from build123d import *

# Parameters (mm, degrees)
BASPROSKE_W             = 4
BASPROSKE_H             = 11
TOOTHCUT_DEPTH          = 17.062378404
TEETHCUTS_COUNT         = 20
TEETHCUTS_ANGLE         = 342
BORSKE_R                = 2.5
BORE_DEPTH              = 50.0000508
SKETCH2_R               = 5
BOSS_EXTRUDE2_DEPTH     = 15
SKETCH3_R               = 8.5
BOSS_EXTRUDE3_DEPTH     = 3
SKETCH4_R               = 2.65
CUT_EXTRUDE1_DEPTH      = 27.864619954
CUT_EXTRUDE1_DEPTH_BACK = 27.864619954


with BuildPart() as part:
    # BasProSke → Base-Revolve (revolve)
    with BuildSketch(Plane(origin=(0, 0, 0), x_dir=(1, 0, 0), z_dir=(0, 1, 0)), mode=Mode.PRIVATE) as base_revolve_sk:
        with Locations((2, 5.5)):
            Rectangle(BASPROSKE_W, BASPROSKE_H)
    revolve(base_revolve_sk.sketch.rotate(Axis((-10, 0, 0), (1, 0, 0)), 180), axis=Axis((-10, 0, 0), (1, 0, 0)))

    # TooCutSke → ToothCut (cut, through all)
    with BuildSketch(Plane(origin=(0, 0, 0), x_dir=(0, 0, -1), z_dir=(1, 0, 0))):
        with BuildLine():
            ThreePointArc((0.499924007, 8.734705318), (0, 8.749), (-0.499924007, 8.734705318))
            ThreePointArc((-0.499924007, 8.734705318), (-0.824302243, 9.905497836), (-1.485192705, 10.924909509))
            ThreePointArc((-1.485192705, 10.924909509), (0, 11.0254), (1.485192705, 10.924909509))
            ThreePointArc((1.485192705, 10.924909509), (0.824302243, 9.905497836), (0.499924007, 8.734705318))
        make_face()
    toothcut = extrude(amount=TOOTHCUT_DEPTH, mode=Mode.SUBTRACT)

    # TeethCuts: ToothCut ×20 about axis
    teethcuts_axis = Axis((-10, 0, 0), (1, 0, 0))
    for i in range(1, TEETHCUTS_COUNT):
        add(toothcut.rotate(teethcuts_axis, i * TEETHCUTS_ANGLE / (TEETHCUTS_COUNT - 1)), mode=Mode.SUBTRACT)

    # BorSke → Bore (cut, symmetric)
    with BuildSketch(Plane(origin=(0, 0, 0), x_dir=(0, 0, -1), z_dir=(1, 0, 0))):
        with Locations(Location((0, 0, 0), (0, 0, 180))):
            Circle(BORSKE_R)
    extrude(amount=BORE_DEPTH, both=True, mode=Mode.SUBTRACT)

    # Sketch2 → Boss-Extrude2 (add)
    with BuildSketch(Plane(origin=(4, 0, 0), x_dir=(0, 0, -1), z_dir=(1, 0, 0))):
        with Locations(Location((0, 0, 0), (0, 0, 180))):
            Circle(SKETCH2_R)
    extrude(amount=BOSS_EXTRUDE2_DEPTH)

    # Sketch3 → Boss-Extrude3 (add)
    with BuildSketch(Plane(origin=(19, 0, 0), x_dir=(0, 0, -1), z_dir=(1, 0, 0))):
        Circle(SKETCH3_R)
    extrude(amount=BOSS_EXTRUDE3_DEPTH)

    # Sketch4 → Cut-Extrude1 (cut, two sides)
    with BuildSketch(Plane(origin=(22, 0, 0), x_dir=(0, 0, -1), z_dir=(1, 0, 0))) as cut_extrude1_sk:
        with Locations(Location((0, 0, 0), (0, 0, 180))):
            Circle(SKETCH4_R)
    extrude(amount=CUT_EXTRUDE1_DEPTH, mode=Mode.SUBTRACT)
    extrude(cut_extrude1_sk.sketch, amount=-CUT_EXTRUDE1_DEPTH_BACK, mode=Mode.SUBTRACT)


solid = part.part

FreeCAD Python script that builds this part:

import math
import FreeCAD as App
import Part
import Sketcher

doc = App.newDocument("Part")
params = doc.addObject("Spreadsheet::Sheet", "Params")
for row, (alias, value) in enumerate([
    ("sketch1_width", "4 mm"),
    ("sketch1_height", "11 mm"),
    ("revolution_angle", "360 deg"),
    ("sketch2_radius", "4 mm"),
    ("sketch3_diameter", "5 mm"),
    ("pocket2_length", "100.000102 mm"),
    ("sketch4_diameter", "10 mm"),
    ("pad1_length", "15 mm"),
    ("sketch5_diameter", "17 mm"),
    ("pad2_length", "3 mm"),
    ("sketch6_diameter", "5.3 mm"),
], start=1):
    params.set(f"A{row}", alias)
    params.set(f"B{row}", "=" + value)
    params.setAlias(f"B{row}", alias)

body = doc.addObject("PartDesign::Body", "Body")

# Sketch on XZ plane
sketch1 = body.newObject("Sketcher::SketchObject", "Sketch")
sketch1.AttachmentSupport = (doc.getObject("XZ_Plane"), [""])
sketch1.MapMode = "FlatFace"
sketch1.addGeometry([
    Part.LineSegment(App.Vector(0, -11, 0), App.Vector(0, 0, 0)),
    Part.LineSegment(App.Vector(0, 0, 0), App.Vector(4, 0, 0)),
    Part.LineSegment(App.Vector(4, 0, 0), App.Vector(4, -11, 0)),
    Part.LineSegment(App.Vector(4, -11, 0), App.Vector(0, -11, 0)),
], False)
sketch1.addConstraint([
    Sketcher.Constraint("Coincident", 0, 2, 1, 1),
    Sketcher.Constraint("Coincident", 1, 2, 2, 1),
    Sketcher.Constraint("Coincident", 2, 2, 3, 1),
    Sketcher.Constraint("Coincident", 3, 2, 0, 1),
    Sketcher.Constraint("Vertical", 0),
    Sketcher.Constraint("Horizontal", 1),
    Sketcher.Constraint("Vertical", 2),
    Sketcher.Constraint("Horizontal", 3),
    Sketcher.Constraint("Coincident", 0, 2, -1, 1),
    Sketcher.Constraint("DistanceX", 1, 1, 1, 2, 4.0),
    Sketcher.Constraint("DistanceY", 0, 1, 0, 2, 11.0),
])
sketch1.setExpression("Constraints[9]", "Params.sketch1_width")
sketch1.setExpression("Constraints[10]", "Params.sketch1_height")
revolution = body.newObject("PartDesign::Revolution", "Revolution")
revolution.Profile = sketch1
revolution.ReferenceAxis = (sketch1, ["H_Axis"])
revolution.setExpression("Angle", "Params.revolution_angle")

# Sketch on YZ plane
sketch2 = body.newObject("Sketcher::SketchObject", "Sketch001")
sketch2.AttachmentSupport = (doc.getObject("YZ_Plane"), [""])
sketch2.MapMode = "FlatFace"
sketch2.addGeometry([
    Part.ArcOfCircle(Part.Circle(App.Vector(0, 0, 0), App.Vector(0, 0, 1), 8.7), math.radians(-3.28), math.radians(3.28)),
    Part.ArcOfCircle(Part.Circle(App.Vector(8.3, -4.5, 0), App.Vector(0, 0, 1), 4), math.radians(48), math.radians(83)),
    Part.ArcOfCircle(Part.Circle(App.Vector(0, 0, 0), App.Vector(0, 0, 1), 11), math.radians(-7.74), math.radians(7.74)),
    Part.ArcOfCircle(Part.Circle(App.Vector(8.3, 4.5, 0), App.Vector(0, 0, 1), 4), math.radians(-83), math.radians(-48)),
], False)
sketch2.addConstraint([
    Sketcher.Constraint("Coincident", 0, 1, 1, 2),
    Sketcher.Constraint("Coincident", 1, 1, 2, 1),
    Sketcher.Constraint("Coincident", 2, 2, 3, 2),
    Sketcher.Constraint("Coincident", 3, 1, 0, 2),
    Sketcher.Constraint("Coincident", 0, 3, -1, 1),
    Sketcher.Constraint("Coincident", 2, 3, -1, 1),
    Sketcher.Constraint("Equal", 1, 3),
    Sketcher.Constraint("Symmetric", 1, 3, 3, 3, -1),
    Sketcher.Constraint("Radius", 1, 4.0),
    Sketcher.Constraint("Radius", 0, 8.749),
    Sketcher.Constraint("Radius", 2, 11.0254),
    Sketcher.Constraint("DistanceY", 1, 3, -1, 1, 4.47219),
    Sketcher.Constraint("DistanceX", -1, 1, 1, 1, 10.92491),
])
sketch2.setExpression("Constraints[8]", "Params.sketch2_radius")
pocket1 = body.newObject("PartDesign::Pocket", "Pocket")
pocket1.Profile = sketch2
pocket1.Type = "ThroughAll"
pocket1.Reversed = True
doc.recompute()

polarpattern = body.newObject("PartDesign::PolarPattern", "PolarPattern")
polarpattern.Originals = [pocket1]
polarpattern.Axis = (doc.getObject("X_Axis"), [""])
polarpattern.Angle = 360
polarpattern.Occurrences = 20
body.Tip = polarpattern

# Sketch on YZ plane
sketch3 = body.newObject("Sketcher::SketchObject", "Sketch002")
sketch3.AttachmentSupport = (doc.getObject("YZ_Plane"), [""])
sketch3.MapMode = "FlatFace"
sketch3.addGeometry(Part.Circle(App.Vector(0, 0, 0), App.Vector(0, 0, 1), 2.5), False)
sketch3.addConstraint([
    Sketcher.Constraint("Coincident", 0, 3, -1, 1),
    Sketcher.Constraint("Diameter", 0, 5.0),
])
sketch3.setExpression("Constraints[1]", "Params.sketch3_diameter")
pocket2 = body.newObject("PartDesign::Pocket", "Pocket001")
pocket2.Profile = sketch3
pocket2.setExpression("Length", "Params.pocket2_length")
pocket2.Midplane = True

# Sketch on YZ plane
sketch4 = body.newObject("Sketcher::SketchObject", "Sketch003")
sketch4.AttachmentSupport = (doc.getObject("YZ_Plane"), [""])
sketch4.MapMode = "FlatFace"
sketch4.AttachmentOffset = App.Placement(App.Vector(0, 0, 4), App.Rotation())
sketch4.addGeometry(Part.Circle(App.Vector(0, 0, 0), App.Vector(0, 0, 1), 5), False)
sketch4.addConstraint([
    Sketcher.Constraint("Coincident", 0, 3, -1, 1),
    Sketcher.Constraint("Diameter", 0, 10.0),
])
sketch4.setExpression("Constraints[1]", "Params.sketch4_diameter")
pad1 = body.newObject("PartDesign::Pad", "Pad")
pad1.Profile = sketch4
pad1.setExpression("Length", "Params.pad1_length")

# Sketch on YZ plane
sketch5 = body.newObject("Sketcher::SketchObject", "Sketch004")
sketch5.AttachmentSupport = (doc.getObject("YZ_Plane"), [""])
sketch5.MapMode = "FlatFace"
sketch5.AttachmentOffset = App.Placement(App.Vector(0, 0, 19), App.Rotation())
sketch5.addGeometry(Part.Circle(App.Vector(0, 0, 0), App.Vector(0, 0, 1), 8), False)
sketch5.addConstraint([
    Sketcher.Constraint("Coincident", 0, 3, -1, 1),
    Sketcher.Constraint("Diameter", 0, 17.0),
])
sketch5.setExpression("Constraints[1]", "Params.sketch5_diameter")
pad2 = body.newObject("PartDesign::Pad", "Pad001")
pad2.Profile = sketch5
pad2.setExpression("Length", "Params.pad2_length")

# Sketch on YZ plane
sketch6 = body.newObject("Sketcher::SketchObject", "Sketch005")
sketch6.AttachmentSupport = (doc.getObject("YZ_Plane"), [""])
sketch6.MapMode = "FlatFace"
sketch6.AttachmentOffset = App.Placement(App.Vector(0, 0, 22), App.Rotation())
sketch6.addGeometry(Part.Circle(App.Vector(0, 0, 0), App.Vector(0, 0, 1), 2.6), False)
sketch6.addConstraint([
    Sketcher.Constraint("Coincident", 0, 3, -1, 1),
    Sketcher.Constraint("Diameter", 0, 5.3),
])
sketch6.setExpression("Constraints[1]", "Params.sketch6_diameter")
pocket3 = body.newObject("PartDesign::Pocket", "Pocket002")
pocket3.Profile = sketch6
pocket3.Type = "ThroughAll"
pocket3.Midplane = True

doc.recompute()
